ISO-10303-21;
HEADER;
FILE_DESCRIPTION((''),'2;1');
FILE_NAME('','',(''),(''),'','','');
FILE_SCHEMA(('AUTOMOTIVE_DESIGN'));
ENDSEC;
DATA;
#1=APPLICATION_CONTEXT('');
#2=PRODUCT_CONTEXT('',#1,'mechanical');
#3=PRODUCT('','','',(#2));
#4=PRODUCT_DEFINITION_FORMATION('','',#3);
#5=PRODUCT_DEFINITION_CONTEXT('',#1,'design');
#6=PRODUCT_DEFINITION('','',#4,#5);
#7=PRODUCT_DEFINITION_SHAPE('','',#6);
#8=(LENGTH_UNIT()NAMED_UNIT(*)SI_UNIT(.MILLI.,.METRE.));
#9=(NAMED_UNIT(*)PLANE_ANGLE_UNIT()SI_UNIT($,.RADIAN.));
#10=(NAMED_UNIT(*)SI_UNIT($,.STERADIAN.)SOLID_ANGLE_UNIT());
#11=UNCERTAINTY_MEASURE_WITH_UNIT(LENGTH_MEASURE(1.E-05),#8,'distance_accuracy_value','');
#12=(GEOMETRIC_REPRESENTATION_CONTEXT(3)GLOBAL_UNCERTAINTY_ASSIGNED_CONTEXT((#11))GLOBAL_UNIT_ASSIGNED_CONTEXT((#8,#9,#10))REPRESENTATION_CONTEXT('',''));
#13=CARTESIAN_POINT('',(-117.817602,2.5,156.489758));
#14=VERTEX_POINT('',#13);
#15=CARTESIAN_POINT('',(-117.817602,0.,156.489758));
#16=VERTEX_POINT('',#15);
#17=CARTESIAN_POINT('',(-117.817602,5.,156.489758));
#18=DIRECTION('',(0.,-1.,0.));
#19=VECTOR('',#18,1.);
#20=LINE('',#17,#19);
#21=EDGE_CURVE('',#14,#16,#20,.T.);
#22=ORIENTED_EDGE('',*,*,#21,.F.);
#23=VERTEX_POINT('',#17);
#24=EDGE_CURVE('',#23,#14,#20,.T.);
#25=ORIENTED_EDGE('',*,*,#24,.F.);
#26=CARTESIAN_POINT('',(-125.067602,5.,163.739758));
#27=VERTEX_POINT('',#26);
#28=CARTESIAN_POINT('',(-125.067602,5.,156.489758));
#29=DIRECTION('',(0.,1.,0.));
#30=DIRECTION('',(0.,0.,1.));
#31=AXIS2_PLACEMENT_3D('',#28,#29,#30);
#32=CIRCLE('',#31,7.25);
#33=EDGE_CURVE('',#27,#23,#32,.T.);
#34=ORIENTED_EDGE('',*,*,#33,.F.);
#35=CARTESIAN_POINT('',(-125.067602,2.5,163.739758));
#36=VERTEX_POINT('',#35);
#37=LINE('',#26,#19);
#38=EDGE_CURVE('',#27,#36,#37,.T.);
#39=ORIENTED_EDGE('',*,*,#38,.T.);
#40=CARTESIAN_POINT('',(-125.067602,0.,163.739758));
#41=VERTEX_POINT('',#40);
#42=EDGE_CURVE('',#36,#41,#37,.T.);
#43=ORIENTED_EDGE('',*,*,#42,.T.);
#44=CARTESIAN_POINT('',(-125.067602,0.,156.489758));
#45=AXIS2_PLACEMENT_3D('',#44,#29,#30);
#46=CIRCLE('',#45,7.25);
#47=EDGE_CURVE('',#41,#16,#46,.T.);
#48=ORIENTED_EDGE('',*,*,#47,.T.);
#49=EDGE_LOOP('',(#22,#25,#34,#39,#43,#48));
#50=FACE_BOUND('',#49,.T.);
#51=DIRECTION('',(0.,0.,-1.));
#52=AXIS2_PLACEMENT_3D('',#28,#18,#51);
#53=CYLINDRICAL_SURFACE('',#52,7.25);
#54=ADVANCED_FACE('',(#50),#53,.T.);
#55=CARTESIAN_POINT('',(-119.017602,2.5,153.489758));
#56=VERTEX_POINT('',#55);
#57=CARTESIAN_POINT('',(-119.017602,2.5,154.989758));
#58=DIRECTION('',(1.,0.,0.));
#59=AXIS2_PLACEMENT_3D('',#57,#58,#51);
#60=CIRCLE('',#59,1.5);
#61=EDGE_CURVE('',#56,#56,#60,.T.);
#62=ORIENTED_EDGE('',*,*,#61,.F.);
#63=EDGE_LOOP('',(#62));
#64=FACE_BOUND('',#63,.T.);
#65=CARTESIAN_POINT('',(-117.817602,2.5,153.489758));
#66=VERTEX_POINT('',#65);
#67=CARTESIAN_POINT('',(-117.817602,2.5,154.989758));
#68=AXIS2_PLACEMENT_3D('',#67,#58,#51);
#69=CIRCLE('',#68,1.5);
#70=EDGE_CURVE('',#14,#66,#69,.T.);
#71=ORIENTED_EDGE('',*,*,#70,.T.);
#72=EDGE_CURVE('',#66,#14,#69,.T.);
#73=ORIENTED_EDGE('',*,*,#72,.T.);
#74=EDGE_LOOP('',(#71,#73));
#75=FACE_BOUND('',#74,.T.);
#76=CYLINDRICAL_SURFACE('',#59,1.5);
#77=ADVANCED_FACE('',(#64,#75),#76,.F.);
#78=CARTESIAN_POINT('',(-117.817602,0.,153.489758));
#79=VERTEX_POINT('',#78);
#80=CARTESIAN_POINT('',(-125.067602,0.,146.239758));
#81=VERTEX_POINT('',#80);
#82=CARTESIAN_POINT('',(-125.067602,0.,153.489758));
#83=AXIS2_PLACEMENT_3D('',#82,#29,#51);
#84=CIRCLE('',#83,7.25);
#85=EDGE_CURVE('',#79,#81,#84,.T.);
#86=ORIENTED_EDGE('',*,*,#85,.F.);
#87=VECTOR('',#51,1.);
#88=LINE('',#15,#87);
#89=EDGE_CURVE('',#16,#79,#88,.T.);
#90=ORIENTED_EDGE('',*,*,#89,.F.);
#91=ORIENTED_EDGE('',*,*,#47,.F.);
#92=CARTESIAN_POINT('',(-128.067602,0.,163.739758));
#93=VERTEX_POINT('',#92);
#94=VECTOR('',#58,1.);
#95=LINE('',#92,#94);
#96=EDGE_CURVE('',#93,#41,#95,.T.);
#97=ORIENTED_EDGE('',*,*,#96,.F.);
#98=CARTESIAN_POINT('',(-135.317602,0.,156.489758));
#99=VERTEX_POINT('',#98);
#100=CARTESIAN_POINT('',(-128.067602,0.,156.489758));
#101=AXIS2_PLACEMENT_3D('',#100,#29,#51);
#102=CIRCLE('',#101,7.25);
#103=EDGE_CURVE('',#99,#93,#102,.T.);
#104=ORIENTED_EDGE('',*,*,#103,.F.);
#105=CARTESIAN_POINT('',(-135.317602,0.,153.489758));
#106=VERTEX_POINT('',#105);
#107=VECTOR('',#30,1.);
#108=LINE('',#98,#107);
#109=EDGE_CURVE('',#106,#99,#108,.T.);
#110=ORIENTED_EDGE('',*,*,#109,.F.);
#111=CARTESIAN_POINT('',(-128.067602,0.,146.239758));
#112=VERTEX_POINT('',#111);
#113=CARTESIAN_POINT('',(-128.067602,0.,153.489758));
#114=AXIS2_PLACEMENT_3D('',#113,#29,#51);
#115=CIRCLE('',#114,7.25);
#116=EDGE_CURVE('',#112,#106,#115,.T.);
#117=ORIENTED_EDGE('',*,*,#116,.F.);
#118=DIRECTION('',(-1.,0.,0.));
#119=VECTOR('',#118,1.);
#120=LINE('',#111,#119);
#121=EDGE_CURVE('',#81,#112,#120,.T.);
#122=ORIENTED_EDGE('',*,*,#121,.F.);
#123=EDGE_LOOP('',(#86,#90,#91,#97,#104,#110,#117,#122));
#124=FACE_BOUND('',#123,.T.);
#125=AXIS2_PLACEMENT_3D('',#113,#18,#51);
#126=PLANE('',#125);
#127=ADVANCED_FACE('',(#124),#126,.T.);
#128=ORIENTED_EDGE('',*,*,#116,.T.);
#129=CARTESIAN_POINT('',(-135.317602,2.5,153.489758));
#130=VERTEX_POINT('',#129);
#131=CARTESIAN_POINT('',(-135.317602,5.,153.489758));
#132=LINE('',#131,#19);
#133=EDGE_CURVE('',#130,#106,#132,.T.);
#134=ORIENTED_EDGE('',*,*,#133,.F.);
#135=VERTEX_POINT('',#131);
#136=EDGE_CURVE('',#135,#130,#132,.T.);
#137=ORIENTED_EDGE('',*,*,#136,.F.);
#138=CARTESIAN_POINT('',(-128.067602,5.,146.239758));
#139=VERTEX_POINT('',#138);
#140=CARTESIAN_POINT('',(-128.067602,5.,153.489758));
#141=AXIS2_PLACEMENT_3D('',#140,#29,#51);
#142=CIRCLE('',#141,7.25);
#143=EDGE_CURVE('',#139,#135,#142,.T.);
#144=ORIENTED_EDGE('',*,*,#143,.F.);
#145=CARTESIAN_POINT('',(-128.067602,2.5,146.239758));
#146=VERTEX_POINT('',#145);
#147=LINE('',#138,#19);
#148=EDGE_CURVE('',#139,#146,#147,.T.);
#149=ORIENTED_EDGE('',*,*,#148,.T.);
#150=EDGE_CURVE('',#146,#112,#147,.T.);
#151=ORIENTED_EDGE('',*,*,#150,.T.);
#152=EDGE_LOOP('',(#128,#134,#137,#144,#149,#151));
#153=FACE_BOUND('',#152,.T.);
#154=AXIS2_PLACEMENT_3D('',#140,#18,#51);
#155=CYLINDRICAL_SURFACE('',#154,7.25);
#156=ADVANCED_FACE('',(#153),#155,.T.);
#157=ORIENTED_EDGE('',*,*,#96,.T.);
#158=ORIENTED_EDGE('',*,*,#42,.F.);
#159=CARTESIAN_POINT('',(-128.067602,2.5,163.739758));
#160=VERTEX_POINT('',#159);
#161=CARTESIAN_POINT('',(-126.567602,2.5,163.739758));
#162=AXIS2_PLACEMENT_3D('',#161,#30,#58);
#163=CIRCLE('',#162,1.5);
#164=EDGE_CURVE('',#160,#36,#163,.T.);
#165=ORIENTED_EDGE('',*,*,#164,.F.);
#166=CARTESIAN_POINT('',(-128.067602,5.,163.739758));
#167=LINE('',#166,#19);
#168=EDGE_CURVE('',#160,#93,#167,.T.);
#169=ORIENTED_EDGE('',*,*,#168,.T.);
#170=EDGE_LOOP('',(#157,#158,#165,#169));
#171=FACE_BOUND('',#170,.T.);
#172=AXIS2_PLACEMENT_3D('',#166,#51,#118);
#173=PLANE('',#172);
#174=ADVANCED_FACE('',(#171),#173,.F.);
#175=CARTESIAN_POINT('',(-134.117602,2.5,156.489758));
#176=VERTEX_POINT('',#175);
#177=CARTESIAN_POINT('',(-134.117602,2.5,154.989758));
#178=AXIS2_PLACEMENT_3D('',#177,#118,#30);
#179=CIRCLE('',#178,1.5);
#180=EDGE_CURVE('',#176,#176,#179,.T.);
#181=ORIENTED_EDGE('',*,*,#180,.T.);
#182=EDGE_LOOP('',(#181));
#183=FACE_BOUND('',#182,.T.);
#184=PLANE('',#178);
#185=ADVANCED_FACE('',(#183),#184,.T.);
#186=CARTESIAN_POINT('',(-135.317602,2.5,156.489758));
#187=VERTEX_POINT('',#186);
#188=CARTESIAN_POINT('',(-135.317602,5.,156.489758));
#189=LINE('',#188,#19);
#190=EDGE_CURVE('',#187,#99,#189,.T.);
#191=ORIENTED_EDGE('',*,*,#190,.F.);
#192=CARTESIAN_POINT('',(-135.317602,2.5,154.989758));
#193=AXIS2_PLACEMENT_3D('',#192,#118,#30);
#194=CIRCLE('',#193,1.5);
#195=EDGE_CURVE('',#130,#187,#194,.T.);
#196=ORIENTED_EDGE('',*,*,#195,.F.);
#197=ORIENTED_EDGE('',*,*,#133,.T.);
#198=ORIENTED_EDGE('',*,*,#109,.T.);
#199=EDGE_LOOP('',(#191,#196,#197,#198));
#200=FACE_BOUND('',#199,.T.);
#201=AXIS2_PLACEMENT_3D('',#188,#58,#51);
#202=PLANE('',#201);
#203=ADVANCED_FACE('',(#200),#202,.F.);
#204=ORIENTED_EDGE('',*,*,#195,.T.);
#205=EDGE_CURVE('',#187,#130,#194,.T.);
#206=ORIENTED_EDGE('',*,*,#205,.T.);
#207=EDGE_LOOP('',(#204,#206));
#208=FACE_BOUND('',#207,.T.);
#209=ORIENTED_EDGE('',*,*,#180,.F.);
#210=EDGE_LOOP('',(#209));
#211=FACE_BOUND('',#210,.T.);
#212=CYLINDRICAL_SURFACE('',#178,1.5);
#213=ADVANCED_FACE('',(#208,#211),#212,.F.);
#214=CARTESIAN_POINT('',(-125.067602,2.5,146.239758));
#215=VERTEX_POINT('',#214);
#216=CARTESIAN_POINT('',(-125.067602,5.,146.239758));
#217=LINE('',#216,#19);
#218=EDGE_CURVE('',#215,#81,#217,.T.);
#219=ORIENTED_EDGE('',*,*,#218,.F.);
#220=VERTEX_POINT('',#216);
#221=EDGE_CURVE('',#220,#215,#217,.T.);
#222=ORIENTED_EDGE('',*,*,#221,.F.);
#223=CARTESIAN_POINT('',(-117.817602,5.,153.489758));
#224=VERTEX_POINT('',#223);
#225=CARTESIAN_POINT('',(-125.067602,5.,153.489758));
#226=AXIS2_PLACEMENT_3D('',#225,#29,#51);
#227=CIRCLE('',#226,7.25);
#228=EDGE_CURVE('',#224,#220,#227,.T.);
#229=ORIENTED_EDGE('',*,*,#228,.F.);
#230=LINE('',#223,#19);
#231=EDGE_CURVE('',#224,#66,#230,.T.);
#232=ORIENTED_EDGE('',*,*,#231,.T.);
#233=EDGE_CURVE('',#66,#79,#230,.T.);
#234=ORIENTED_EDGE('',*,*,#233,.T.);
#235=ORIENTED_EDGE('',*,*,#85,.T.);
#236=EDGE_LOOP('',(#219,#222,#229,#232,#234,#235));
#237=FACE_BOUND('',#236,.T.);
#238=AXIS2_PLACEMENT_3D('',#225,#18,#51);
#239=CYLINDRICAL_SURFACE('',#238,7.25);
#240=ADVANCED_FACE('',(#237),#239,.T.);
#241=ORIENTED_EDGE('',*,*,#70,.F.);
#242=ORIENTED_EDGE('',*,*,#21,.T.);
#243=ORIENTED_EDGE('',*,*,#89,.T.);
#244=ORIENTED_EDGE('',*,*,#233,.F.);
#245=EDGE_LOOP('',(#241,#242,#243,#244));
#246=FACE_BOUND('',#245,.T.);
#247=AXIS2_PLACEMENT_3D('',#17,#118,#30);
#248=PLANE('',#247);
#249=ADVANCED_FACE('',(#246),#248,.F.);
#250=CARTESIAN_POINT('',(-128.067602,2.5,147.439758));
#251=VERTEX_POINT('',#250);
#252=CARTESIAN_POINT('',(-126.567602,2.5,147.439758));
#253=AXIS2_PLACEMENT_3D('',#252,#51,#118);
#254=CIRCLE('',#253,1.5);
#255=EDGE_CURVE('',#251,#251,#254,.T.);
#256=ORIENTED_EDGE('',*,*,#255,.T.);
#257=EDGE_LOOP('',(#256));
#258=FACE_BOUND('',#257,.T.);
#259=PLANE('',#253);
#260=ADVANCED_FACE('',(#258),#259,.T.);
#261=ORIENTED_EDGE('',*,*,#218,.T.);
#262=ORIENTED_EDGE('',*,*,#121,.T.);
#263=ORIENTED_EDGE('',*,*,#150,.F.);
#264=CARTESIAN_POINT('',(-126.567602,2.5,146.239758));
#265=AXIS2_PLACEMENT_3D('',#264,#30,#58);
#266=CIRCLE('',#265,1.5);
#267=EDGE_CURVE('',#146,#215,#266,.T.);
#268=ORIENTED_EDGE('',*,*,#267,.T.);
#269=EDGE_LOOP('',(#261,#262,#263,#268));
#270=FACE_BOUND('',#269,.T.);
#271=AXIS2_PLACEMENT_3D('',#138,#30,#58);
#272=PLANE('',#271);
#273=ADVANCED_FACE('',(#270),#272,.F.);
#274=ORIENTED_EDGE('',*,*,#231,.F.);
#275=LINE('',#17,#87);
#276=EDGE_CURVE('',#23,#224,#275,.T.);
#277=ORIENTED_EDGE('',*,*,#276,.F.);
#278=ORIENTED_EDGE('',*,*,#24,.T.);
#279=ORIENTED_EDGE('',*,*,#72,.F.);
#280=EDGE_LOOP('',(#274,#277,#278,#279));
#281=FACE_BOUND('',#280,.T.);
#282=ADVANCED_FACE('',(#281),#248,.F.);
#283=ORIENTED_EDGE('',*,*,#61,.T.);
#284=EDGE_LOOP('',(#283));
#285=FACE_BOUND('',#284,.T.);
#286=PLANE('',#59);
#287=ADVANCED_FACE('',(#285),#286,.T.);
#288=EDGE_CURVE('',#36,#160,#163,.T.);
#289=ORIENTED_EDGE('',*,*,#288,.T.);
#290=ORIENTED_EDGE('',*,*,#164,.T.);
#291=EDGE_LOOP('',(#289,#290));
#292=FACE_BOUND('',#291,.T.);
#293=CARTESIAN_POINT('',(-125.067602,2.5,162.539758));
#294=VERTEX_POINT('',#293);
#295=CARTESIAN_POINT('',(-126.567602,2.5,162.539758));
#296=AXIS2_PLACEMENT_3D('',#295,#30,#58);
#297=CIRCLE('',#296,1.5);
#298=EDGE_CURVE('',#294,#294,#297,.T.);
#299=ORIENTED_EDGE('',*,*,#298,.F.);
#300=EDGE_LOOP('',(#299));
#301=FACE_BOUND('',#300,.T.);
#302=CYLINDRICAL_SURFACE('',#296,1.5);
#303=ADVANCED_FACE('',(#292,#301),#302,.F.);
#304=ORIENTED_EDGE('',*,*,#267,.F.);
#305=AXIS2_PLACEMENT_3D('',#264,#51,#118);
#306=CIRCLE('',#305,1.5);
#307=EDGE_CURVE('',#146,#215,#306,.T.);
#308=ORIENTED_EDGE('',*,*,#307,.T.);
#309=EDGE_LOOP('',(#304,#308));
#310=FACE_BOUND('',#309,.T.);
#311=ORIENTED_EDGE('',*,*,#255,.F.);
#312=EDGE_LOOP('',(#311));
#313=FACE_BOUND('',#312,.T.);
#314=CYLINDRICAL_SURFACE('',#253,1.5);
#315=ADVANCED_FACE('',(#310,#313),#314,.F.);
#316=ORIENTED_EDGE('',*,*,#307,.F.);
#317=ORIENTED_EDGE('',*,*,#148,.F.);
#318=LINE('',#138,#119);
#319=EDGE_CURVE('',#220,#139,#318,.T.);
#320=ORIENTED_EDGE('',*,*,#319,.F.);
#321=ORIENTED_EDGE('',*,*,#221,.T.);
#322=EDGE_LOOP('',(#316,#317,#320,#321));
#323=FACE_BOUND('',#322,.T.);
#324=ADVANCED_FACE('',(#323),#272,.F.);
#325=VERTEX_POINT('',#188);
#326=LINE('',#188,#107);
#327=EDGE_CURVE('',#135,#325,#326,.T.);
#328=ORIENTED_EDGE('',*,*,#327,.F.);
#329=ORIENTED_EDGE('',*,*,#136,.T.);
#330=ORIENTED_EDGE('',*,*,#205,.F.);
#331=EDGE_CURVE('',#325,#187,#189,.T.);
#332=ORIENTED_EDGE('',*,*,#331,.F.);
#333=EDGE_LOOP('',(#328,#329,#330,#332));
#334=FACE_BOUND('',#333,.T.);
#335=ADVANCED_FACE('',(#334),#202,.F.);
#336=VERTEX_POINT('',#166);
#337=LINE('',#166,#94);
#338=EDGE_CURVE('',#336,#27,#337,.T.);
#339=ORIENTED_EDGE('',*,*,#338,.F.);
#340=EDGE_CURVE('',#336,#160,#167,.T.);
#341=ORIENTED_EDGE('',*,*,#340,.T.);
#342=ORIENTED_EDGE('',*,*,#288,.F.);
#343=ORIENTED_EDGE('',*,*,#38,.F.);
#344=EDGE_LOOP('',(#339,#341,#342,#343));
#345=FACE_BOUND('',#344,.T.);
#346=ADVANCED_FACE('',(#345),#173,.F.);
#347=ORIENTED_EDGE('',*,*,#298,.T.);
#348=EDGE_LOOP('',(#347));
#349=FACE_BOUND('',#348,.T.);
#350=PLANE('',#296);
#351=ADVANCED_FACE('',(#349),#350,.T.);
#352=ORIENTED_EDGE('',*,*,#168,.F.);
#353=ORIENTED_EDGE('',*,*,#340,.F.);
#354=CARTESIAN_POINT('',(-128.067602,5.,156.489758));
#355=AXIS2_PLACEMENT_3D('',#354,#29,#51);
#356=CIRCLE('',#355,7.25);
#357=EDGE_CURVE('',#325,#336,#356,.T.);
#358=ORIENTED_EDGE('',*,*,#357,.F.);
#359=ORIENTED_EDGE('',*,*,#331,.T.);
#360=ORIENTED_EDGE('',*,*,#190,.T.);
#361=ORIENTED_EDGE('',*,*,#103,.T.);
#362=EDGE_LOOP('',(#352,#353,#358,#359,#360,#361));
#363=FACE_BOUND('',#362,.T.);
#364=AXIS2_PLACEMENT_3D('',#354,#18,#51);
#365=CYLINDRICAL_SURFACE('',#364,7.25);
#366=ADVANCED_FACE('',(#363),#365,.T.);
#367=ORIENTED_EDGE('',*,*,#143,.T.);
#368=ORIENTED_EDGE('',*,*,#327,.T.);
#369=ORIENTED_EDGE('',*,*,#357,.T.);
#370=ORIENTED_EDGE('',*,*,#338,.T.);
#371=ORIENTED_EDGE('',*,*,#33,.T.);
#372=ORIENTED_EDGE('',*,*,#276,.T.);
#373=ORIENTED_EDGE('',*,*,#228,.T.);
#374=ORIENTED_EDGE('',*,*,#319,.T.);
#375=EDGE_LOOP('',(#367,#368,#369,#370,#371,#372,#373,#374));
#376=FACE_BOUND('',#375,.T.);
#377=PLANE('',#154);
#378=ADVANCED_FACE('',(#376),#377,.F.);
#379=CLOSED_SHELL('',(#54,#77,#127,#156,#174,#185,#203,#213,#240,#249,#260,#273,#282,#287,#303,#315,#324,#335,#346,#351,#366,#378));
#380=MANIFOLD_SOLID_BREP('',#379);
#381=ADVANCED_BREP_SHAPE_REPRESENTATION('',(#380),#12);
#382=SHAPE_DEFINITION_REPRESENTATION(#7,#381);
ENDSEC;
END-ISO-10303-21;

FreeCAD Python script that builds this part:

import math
import FreeCAD as App
import Part
import Sketcher
Q = App.Units.Quantity

doc = App.newDocument("Part")
body = doc.addObject("PartDesign::Body", "Body")

# Sketch on XZ plane
sketch1 = doc.addObject("Sketcher::SketchObject", "Sketch")
body.addObject(sketch1)
sketch1.AttachmentSupport = (doc.XZ_Plane, [""])
sketch1.MapMode = "FlatFace"
sketch1.addGeometry([
    Part.LineSegment(App.Vector(-128.1, 163.7, 0), App.Vector(-125.1, 163.7, 0)),  # 0
    Part.ArcOfCircle(Part.Circle(App.Vector(-125.1, 156.5, 0), App.Vector(0, 0, 1), 7.2), math.radians(0), math.radians(90)),  # 1
    Part.LineSegment(App.Vector(-117.8, 156.5, 0), App.Vector(-117.8, 153.5, 0)),  # 2
    Part.ArcOfCircle(Part.Circle(App.Vector(-125.1, 153.5, 0), App.Vector(0, 0, 1), 7.2), math.radians(-90), math.radians(0)),  # 3
    Part.LineSegment(App.Vector(-125.1, 146.2, 0), App.Vector(-128.1, 146.2, 0)),  # 4
    Part.ArcOfCircle(Part.Circle(App.Vector(-128.1, 153.5, 0), App.Vector(0, 0, 1), 7.3), math.radians(-180), math.radians(-90)),  # 5
    Part.LineSegment(App.Vector(-135.3, 153.5, 0), App.Vector(-135.3, 156.5, 0)),  # 6
    Part.ArcOfCircle(Part.Circle(App.Vector(-128.1, 156.5, 0), App.Vector(0, 0, 1), 7.2), math.radians(90), math.radians(180)),  # 7
], False)
sketch1.addConstraint([
    Sketcher.Constraint("Tangent", 0, 2, 1, 2),
    Sketcher.Constraint("Tangent", 1, 1, 2, 1),
    Sketcher.Constraint("Tangent", 2, 2, 3, 2),
    Sketcher.Constraint("Tangent", 3, 1, 4, 1),
    Sketcher.Constraint("Tangent", 4, 2, 5, 2),
    Sketcher.Constraint("Tangent", 5, 1, 6, 1),
    Sketcher.Constraint("Tangent", 6, 2, 7, 2),
    Sketcher.Constraint("Tangent", 7, 1, 0, 1),
    Sketcher.Constraint("Horizontal", 0),
    Sketcher.Constraint("Vertical", 2),
    Sketcher.Constraint("Horizontal", 4),
    Sketcher.Constraint("Vertical", 6),
    Sketcher.Constraint("Equal", 1, 3),
    Sketcher.Constraint("Equal", 3, 5),
    Sketcher.Constraint("Equal", 5, 7),
    Sketcher.Constraint("Equal", 4, 2),
    Sketcher.Constraint("DistanceX", 0, 1, 0, 2, Q("3 mm")),
    Sketcher.Constraint("Radius", 1, Q("7.25 mm")),
    Sketcher.Constraint("DistanceX", 1, 3, -1, 1, Q("125.067602 mm")),
    Sketcher.Constraint("DistanceY", -1, 1, 1, 3, Q("156.489758 mm")),
])
pad1 = doc.addObject("PartDesign::Pad", "Pad")
body.addObject(pad1)
pad1.Profile = sketch1
pad1.Length = 5
pad1.Reversed = True

# Sketch on XY plane
sketch2 = doc.addObject("Sketcher::SketchObject", "Sketch001")
body.addObject(sketch2)
sketch2.AttachmentSupport = (doc.XY_Plane, [""])
sketch2.MapMode = "FlatFace"
sketch2.AttachmentOffset = App.Placement(App.Vector(0, 0, 146.239758), App.Rotation())
sketch2.addGeometry(Part.Circle(App.Vector(-126.6, 2.5, 0), App.Vector(0, 0, 1), 1.5), False)
sketch2.addConstraint([
    Sketcher.Constraint("Diameter", 0, Q("3 mm")),
    Sketcher.Constraint("DistanceY", -1, 1, 0, 3, Q("2.5 mm")),
    Sketcher.Constraint("DistanceX", 0, 3, -1, 1, Q("126.567602 mm")),
])
pocket1 = doc.addObject("PartDesign::Pocket", "Pocket")
body.addObject(pocket1)
pocket1.Profile = sketch2
pocket1.Length = 1.2
pocket1.Reversed = True

# Sketch on YZ plane
sketch3 = doc.addObject("Sketcher::SketchObject", "Sketch002")
body.addObject(sketch3)
sketch3.AttachmentSupport = (doc.YZ_Plane, [""])
sketch3.MapMode = "FlatFace"
sketch3.AttachmentOffset = App.Placement(App.Vector(0, 0, -117.817602), App.Rotation())
sketch3.addGeometry(Part.Circle(App.Vector(2.5, 155, 0), App.Vector(0, 0, 1), 1.5), False)
sketch3.addConstraint([
    Sketcher.Constraint("Diameter", 0, Q("3 mm")),
    Sketcher.Constraint("DistanceX", -1, 1, 0, 3, Q("2.5 mm")),
    Sketcher.Constraint("DistanceY", -1, 1, 0, 3, Q("154.989758 mm")),
])
pocket2 = doc.addObject("PartDesign::Pocket", "Pocket001")
body.addObject(pocket2)
pocket2.Profile = sketch3
pocket2.Length = 1.2

# Sketch on YZ plane
sketch4 = doc.addObject("Sketcher::SketchObject", "Sketch003")
body.addObject(sketch4)
sketch4.AttachmentSupport = (doc.YZ_Plane, [""])
sketch4.MapMode = "FlatFace"
sketch4.AttachmentOffset = App.Placement(App.Vector(0, 0, -135.317602), App.Rotation())
sketch4.addGeometry(Part.Circle(App.Vector(2.5, 155, 0), App.Vector(0, 0, 1), 1.5), False)
sketch4.addConstraint([
    Sketcher.Constraint("Diameter", 0, Q("3 mm")),
    Sketcher.Constraint("DistanceX", -1, 1, 0, 3, Q("2.5 mm")),
    Sketcher.Constraint("DistanceY", -1, 1, 0, 3, Q("154.989758 mm")),
])
pocket3 = doc.addObject("PartDesign::Pocket", "Pocket002")
body.addObject(pocket3)
pocket3.Profile = sketch4
pocket3.Length = 1.2
pocket3.Reversed = True

# Sketch on XY plane
sketch5 = doc.addObject("Sketcher::SketchObject", "Sketch004")
body.addObject(sketch5)
sketch5.AttachmentSupport = (doc.XY_Plane, [""])
sketch5.MapMode = "FlatFace"
sketch5.AttachmentOffset = App.Placement(App.Vector(0, 0, 163.739758), App.Rotation())
sketch5.addGeometry(Part.Circle(App.Vector(-126.6, 2.5, 0), App.Vector(0, 0, 1), 1.5), False)
sketch5.addConstraint([
    Sketcher.Constraint("Diameter", 0, Q("3 mm")),
    Sketcher.Constraint("DistanceY", -1, 1, 0, 3, Q("2.5 mm")),
    Sketcher.Constraint("DistanceX", 0, 3, -1, 1, Q("126.567602 mm")),
])
pocket4 = doc.addObject("PartDesign::Pocket", "Pocket003")
body.addObject(pocket4)
pocket4.Profile = sketch5
pocket4.Length = 1.2

doc.recompute()
